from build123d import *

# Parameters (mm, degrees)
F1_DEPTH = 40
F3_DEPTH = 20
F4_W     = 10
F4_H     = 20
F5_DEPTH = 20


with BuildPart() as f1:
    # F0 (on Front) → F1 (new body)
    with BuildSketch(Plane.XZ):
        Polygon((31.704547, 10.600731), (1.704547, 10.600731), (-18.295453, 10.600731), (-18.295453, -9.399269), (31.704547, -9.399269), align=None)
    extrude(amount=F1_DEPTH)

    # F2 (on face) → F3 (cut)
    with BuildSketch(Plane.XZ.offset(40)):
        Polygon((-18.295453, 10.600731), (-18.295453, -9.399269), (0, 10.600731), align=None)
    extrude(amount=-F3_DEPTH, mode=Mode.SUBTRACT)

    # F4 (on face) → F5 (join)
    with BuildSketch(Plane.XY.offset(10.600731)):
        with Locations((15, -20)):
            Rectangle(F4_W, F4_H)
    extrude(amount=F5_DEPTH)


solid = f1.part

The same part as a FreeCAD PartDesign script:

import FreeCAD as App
import Part
import Sketcher

V = App.Vector
Q = App.Units.Quantity

doc = App.newDocument("Part")
body = doc.addObject("PartDesign::Body", "Body")

# Sketch on XZ plane
sketch1 = body.newObject("Sketcher::SketchObject", "Sketch")
sketch1.AttachmentSupport = (doc.getObject("XZ_Plane"), [""])
sketch1.MapMode = "FlatFace"
sketch1.addGeometry(Part.LineSegment(V(32, 11, 0), V(-18, 11, 0)), False)
sketch1.addGeometry(Part.LineSegment(V(-18, 11, 0), V(-18, -9, 0)), False)
sketch1.addGeometry(Part.LineSegment(V(-18, -9, 0), V(32, -9, 0)), False)
sketch1.addGeometry(Part.LineSegment(V(32, -9, 0), V(32, 11, 0)), False)
sketch1.addConstraint(Sketcher.Constraint("Coincident", 0, 2, 1, 1))
sketch1.addConstraint(Sketcher.Constraint("Coincident", 1, 2, 2, 1))
sketch1.addConstraint(Sketcher.Constraint("Coincident", 2, 2, 3, 1))
sketch1.addConstraint(Sketcher.Constraint("Coincident", 3, 2, 0, 1))
sketch1.addConstraint(Sketcher.Constraint("Horizontal", 0))
sketch1.addConstraint(Sketcher.Constraint("Vertical", 1))
sketch1.addConstraint(Sketcher.Constraint("Horizontal", 2))
sketch1.addConstraint(Sketcher.Constraint("Vertical", 3))
sketch1.addConstraint(Sketcher.Constraint("DistanceX", 0, 2, 0, 1, Q("50 mm")))
sketch1.addConstraint(Sketcher.Constraint("DistanceY", 1, 2, 1, 1, Q("20 mm")))
sketch1.addConstraint(Sketcher.Constraint("DistanceY", -1, 1, 0, 2, Q("10.600731 mm")))
sketch1.addConstraint(Sketcher.Constraint("DistanceX", 0, 2, -1, 1, Q("18.295453 mm")))
pad1 = body.newObject("PartDesign::Pad", "Pad")
pad1.Profile = sketch1
pad1.Length = 40

# Sketch on XZ plane
sketch2 = body.newObject("Sketcher::SketchObject", "Sketch001")
sketch2.AttachmentSupport = (doc.getObject("XZ_Plane"), [""])
sketch2.MapMode = "FlatFace"
sketch2.AttachmentOffset = App.Placement(V(0, 0, 40), App.Rotation())
sketch2.addGeometry(Part.LineSegment(V(-18, 11, 0), V(-18, -9, 0)), False)
sketch2.addGeometry(Part.LineSegment(V(-18, -9, 0), V(0, 11, 0)), False)
sketch2.addGeometry(Part.LineSegment(V(0, 11, 0), V(-18, 11, 0)), False)
sketch2.addConstraint(Sketcher.Constraint("Coincident", 0, 2, 1, 1))
sketch2.addConstraint(Sketcher.Constraint("Coincident", 1, 2, 2, 1))
sketch2.addConstraint(Sketcher.Constraint("Coincident", 2, 2, 0, 1))
sketch2.addConstraint(Sketcher.Constraint("Vertical", 0))
sketch2.addConstraint(Sketcher.Constraint("Horizontal", 2))
sketch2.addConstraint(Sketcher.Constraint("PointOnObject", 1, 2, -2))
sketch2.addConstraint(Sketcher.Constraint("DistanceY", 0, 2, 0, 1, Q("20 mm")))
sketch2.addConstraint(Sketcher.Constraint("DistanceX", 2, 2, 2, 1, Q("18.295453 mm")))
sketch2.addConstraint(Sketcher.Constraint("DistanceY", 0, 2, -1, 1, Q("9.399269 mm")))
pocket1 = body.newObject("PartDesign::Pocket", "Pocket")
pocket1.Profile = sketch2
pocket1.Length = 20

# Sketch on XY plane
sketch3 = body.newObject("Sketcher::SketchObject", "Sketch002")
sketch3.AttachmentSupport = (doc.getObject("XY_Plane"), [""])
sketch3.MapMode = "FlatFace"
sketch3.AttachmentOffset = App.Placement(V(0, 0, 10.600731), App.Rotation())
sketch3.addGeometry(Part.LineSegment(V(10, -10, 0), V(10, -30, 0)), False)
sketch3.addGeometry(Part.LineSegment(V(10, -30, 0), V(20, -30, 0)), False)
sketch3.addGeometry(Part.LineSegment(V(20, -30, 0), V(20, -10, 0)), False)
sketch3.addGeometry(Part.LineSegment(V(20, -10, 0), V(10, -10, 0)), False)
sketch3.addConstraint(Sketcher.Constraint("Coincident", 0, 2, 1, 1))
sketch3.addConstraint(Sketcher.Constraint("Coincident", 1, 2, 2, 1))
sketch3.addConstraint(Sketcher.Constraint("Coincident", 2, 2, 3, 1))
sketch3.addConstraint(Sketcher.Constraint("Coincident", 3, 2, 0, 1))
sketch3.addConstraint(Sketcher.Constraint("Vertical", 0))
sketch3.addConstraint(Sketcher.Constraint("Horizontal", 1))
sketch3.addConstraint(Sketcher.Constraint("Vertical", 2))
sketch3.addConstraint(Sketcher.Constraint("Horizontal", 3))
sketch3.addConstraint(Sketcher.Constraint("DistanceX", 1, 1, 1, 2, Q("10 mm")))
sketch3.addConstraint(Sketcher.Constraint("DistanceY", 0, 2, 0, 1, Q("20 mm")))
sketch3.addConstraint(Sketcher.Constraint("DistanceX", -1, 1, 0, 2, Q("10 mm")))
sketch3.addConstraint(Sketcher.Constraint("DistanceY", 0, 2, -1, 1, Q("30 mm")))
pad2 = body.newObject("PartDesign::Pad", "Pad001")
pad2.Profile = sketch3
pad2.Length = 20

doc.recompute()
